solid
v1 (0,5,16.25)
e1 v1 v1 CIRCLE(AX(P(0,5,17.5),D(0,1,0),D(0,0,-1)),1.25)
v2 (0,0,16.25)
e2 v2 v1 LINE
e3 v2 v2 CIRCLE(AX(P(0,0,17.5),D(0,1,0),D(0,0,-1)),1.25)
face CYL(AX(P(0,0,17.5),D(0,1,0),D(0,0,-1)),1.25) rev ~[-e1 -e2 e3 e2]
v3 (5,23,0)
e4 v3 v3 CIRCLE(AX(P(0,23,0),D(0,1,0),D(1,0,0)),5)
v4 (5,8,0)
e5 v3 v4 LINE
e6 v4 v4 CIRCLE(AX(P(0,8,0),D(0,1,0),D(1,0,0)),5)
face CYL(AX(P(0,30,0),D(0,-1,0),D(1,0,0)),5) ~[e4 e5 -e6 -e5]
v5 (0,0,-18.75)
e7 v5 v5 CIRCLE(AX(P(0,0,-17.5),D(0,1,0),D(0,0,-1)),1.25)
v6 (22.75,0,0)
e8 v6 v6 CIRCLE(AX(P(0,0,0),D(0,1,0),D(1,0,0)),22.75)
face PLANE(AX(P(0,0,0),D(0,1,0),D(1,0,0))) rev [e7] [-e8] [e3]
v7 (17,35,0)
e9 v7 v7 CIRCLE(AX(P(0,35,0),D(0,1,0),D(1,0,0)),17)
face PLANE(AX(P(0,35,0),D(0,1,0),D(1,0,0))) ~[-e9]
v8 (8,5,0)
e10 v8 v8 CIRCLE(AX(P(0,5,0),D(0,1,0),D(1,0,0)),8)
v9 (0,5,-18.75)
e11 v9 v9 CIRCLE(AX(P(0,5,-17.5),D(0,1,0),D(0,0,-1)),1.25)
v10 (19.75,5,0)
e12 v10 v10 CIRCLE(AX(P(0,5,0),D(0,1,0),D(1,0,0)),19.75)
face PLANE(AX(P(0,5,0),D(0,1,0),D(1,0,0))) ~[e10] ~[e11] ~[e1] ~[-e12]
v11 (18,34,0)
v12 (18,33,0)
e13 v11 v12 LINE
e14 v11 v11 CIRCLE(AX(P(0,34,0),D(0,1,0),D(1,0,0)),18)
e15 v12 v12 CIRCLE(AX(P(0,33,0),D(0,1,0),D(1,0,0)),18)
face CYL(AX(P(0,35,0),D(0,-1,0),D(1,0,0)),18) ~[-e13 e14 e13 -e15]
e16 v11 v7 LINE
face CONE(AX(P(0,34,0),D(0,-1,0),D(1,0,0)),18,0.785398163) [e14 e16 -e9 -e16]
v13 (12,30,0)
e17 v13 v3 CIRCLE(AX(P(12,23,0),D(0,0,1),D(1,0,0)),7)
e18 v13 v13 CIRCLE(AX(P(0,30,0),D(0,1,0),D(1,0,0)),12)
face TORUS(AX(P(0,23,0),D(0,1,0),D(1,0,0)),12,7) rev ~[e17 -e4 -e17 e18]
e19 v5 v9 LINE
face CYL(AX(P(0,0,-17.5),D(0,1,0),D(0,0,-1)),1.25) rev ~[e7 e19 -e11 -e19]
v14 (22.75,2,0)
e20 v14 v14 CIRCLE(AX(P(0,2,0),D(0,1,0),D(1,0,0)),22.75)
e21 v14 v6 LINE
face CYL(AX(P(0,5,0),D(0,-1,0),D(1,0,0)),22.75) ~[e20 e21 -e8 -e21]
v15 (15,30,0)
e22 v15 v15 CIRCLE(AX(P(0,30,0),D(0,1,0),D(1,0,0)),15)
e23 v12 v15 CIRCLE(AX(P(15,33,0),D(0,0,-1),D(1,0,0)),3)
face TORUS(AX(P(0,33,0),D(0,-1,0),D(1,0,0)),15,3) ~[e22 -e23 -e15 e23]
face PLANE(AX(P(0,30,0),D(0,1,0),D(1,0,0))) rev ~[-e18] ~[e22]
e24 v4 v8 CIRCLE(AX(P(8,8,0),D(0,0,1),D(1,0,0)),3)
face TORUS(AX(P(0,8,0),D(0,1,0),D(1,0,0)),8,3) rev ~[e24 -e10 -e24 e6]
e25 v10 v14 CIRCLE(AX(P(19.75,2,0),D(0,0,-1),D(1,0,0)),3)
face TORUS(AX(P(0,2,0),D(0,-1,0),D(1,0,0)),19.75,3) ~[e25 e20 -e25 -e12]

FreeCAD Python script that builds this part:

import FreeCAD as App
import Part
import Sketcher
Q = App.Units.Quantity


def edges_at(feature, points):
    """Names of the edges that pass closest to the given points."""
    edges = feature.Shape.Edges
    near = lambda p: min(range(len(edges)), key=lambda i: edges[i].distToShape(Part.Vertex(*p))[0])
    return sorted({f"Edge{near(p) + 1}" for p in points})

doc = App.newDocument("Part")
body = doc.addObject("PartDesign::Body", "Body")

sketch1 = body.newObject("Sketcher::SketchObject", "Sketch")
sketch1.AttachmentSupport = (doc.getObject("XY_Plane"), [""])
sketch1.MapMode = "FlatFace"
sketch1.addGeometry(Part.LineSegment(App.Vector(0, 35, 0), App.Vector(0, 0, 0)), False)
sketch1.addGeometry(Part.LineSegment(App.Vector(0, 0, 0), App.Vector(23, 0, 0)), False)
sketch1.addGeometry(Part.LineSegment(App.Vector(23, 0, 0), App.Vector(23, 5, 0)), False)
sketch1.addGeometry(Part.LineSegment(App.Vector(23, 5, 0), App.Vector(5, 5, 0)), False)
sketch1.addGeometry(Part.LineSegment(App.Vector(5, 5, 0), App.Vector(5, 30, 0)), False)
sketch1.addGeometry(Part.LineSegment(App.Vector(5, 30, 0), App.Vector(18, 30, 0)), False)
sketch1.addGeometry(Part.LineSegment(App.Vector(18, 30, 0), App.Vector(18, 35, 0)), False)
sketch1.addGeometry(Part.LineSegment(App.Vector(18, 35, 0), App.Vector(0, 35, 0)), False)
sketch1.addConstraint(Sketcher.Constraint("Coincident", 0, 2, 1, 1))
sketch1.addConstraint(Sketcher.Constraint("Coincident", 1, 2, 2, 1))
sketch1.addConstraint(Sketcher.Constraint("Coincident", 2, 2, 3, 1))
sketch1.addConstraint(Sketcher.Constraint("Coincident", 3, 2, 4, 1))
sketch1.addConstraint(Sketcher.Constraint("Coincident", 4, 2, 5, 1))
sketch1.addConstraint(Sketcher.Constraint("Coincident", 5, 2, 6, 1))
sketch1.addConstraint(Sketcher.Constraint("Coincident", 6, 2, 7, 1))
sketch1.addConstraint(Sketcher.Constraint("Coincident", 7, 2, 0, 1))
sketch1.addConstraint(Sketcher.Constraint("Vertical", 0))
sketch1.addConstraint(Sketcher.Constraint("Horizontal", 1))
sketch1.addConstraint(Sketcher.Constraint("Vertical", 2))
sketch1.addConstraint(Sketcher.Constraint("Horizontal", 3))
sketch1.addConstraint(Sketcher.Constraint("Vertical", 4))
sketch1.addConstraint(Sketcher.Constraint("Horizontal", 5))
sketch1.addConstraint(Sketcher.Constraint("Vertical", 6))
sketch1.addConstraint(Sketcher.Constraint("Horizontal", 7))
sketch1.addConstraint(Sketcher.Constraint("Coincident", 0, 2, -1, 1))
sketch1.addConstraint(Sketcher.Constraint("Equal", 2, 6))
sketch1.addConstraint(Sketcher.Constraint("DistanceX", 7, 2, 7, 1, Q("18 mm")))
sketch1.addConstraint(Sketcher.Constraint("DistanceY", 0, 2, 0, 1, Q("35 mm")))
sketch1.addConstraint(Sketcher.Constraint("DistanceY", 2, 1, 2, 2, Q("5 mm")))
sketch1.addConstraint(Sketcher.Constraint("DistanceX", -1, 1, 3, 2, Q("5 mm")))
sketch1.addConstraint(Sketcher.Constraint("DistanceX", 1, 1, 1, 2, Q("22.75 mm")))
revolution = body.newObject("PartDesign::Revolution", "Revolution")
revolution.Profile = sketch1
revolution.ReferenceAxis = (sketch1, ["V_Axis"])
revolution.Angle = 360
doc.recompute()

fillet = body.newObject("PartDesign::Fillet", "Fillet")
fillet.Base = (revolution, edges_at(revolution, [(-5, 5, 0), (-18, 30, 0), (-22.75, 5, 0)]))
fillet.Radius = 3
doc.recompute()

chamfer = body.newObject("PartDesign::Chamfer", "Chamfer")
chamfer.Base = (fillet, edges_at(fillet, [(-18, 35, 0)]))
chamfer.Size = 1

sketch2 = body.newObject("Sketcher::SketchObject", "Sketch001")
sketch2.AttachmentSupport = (doc.getObject("XZ_Plane"), [""])
sketch2.MapMode = "FlatFace"
sketch2.addGeometry(Part.Circle(App.Vector(0, 17.5, 0), App.Vector(0, 0, 1), 1.2), False)
sketch2.addGeometry(Part.Circle(App.Vector(0, -17.5, 0), App.Vector(0, 0, 1), 1.2), False)
sketch2.addConstraint(Sketcher.Constraint("Equal", 0, 1))
sketch2.addConstraint(Sketcher.Constraint("Symmetric", 0, 3, 1, 3, -1, 1))
sketch2.addConstraint(Sketcher.Constraint("PointOnObject", 0, 3, -2))
sketch2.addConstraint(Sketcher.Constraint("Diameter", 0, Q("2.5 mm")))
sketch2.addConstraint(Sketcher.Constraint("DistanceY", 1, 3, 0, 3, Q("35 mm")))
doc.recompute()
hole = body.newObject("PartDesign::Hole", "Hole")
hole.Profile = sketch2
hole.ThreadType = "None"
hole.Diameter = 2.5
hole.DepthType = "Dimension"
hole.Depth = 5
hole.DrillPoint = "Flat"
doc.recompute()

fillet2 = body.newObject("PartDesign::Fillet", "Fillet001")
fillet2.Base = (hole, edges_at(hole, [(-5, 30, 0)]))
fillet2.Radius = 7

doc.recompute()
